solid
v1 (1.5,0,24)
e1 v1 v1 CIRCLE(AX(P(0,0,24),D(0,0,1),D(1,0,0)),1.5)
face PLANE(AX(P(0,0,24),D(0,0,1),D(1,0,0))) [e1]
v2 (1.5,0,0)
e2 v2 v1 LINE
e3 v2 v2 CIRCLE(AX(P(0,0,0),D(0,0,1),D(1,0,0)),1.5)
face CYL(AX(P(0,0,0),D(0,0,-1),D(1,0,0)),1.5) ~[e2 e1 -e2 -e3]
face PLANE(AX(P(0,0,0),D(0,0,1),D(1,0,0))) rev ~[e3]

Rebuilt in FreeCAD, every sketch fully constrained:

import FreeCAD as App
import Part
import Sketcher
from FreeCAD import Vector
Q = App.Units.Quantity

doc = App.newDocument("Part")
body = doc.addObject("PartDesign::Body", "Body")

sketch1 = doc.addObject("Sketcher::SketchObject", "Sketch")
body.addObject(sketch1)
sketch1.AttachmentSupport = (doc.XY_Plane, [""])
sketch1.MapMode = "FlatFace"
sketch1.addGeometry(Part.Circle(Vector(0, 0, 0), Vector(0, 0, 1), 1.5), False)
sketch1.addConstraint([
    Sketcher.Constraint("Coincident", 0, 3, -1, 1),
    Sketcher.Constraint("Diameter", 0, Q("3 mm")),
])
pad1 = doc.addObject("PartDesign::Pad", "Pad")
body.addObject(pad1)
pad1.Profile = sketch1
pad1.Length = 24

doc.recompute()
